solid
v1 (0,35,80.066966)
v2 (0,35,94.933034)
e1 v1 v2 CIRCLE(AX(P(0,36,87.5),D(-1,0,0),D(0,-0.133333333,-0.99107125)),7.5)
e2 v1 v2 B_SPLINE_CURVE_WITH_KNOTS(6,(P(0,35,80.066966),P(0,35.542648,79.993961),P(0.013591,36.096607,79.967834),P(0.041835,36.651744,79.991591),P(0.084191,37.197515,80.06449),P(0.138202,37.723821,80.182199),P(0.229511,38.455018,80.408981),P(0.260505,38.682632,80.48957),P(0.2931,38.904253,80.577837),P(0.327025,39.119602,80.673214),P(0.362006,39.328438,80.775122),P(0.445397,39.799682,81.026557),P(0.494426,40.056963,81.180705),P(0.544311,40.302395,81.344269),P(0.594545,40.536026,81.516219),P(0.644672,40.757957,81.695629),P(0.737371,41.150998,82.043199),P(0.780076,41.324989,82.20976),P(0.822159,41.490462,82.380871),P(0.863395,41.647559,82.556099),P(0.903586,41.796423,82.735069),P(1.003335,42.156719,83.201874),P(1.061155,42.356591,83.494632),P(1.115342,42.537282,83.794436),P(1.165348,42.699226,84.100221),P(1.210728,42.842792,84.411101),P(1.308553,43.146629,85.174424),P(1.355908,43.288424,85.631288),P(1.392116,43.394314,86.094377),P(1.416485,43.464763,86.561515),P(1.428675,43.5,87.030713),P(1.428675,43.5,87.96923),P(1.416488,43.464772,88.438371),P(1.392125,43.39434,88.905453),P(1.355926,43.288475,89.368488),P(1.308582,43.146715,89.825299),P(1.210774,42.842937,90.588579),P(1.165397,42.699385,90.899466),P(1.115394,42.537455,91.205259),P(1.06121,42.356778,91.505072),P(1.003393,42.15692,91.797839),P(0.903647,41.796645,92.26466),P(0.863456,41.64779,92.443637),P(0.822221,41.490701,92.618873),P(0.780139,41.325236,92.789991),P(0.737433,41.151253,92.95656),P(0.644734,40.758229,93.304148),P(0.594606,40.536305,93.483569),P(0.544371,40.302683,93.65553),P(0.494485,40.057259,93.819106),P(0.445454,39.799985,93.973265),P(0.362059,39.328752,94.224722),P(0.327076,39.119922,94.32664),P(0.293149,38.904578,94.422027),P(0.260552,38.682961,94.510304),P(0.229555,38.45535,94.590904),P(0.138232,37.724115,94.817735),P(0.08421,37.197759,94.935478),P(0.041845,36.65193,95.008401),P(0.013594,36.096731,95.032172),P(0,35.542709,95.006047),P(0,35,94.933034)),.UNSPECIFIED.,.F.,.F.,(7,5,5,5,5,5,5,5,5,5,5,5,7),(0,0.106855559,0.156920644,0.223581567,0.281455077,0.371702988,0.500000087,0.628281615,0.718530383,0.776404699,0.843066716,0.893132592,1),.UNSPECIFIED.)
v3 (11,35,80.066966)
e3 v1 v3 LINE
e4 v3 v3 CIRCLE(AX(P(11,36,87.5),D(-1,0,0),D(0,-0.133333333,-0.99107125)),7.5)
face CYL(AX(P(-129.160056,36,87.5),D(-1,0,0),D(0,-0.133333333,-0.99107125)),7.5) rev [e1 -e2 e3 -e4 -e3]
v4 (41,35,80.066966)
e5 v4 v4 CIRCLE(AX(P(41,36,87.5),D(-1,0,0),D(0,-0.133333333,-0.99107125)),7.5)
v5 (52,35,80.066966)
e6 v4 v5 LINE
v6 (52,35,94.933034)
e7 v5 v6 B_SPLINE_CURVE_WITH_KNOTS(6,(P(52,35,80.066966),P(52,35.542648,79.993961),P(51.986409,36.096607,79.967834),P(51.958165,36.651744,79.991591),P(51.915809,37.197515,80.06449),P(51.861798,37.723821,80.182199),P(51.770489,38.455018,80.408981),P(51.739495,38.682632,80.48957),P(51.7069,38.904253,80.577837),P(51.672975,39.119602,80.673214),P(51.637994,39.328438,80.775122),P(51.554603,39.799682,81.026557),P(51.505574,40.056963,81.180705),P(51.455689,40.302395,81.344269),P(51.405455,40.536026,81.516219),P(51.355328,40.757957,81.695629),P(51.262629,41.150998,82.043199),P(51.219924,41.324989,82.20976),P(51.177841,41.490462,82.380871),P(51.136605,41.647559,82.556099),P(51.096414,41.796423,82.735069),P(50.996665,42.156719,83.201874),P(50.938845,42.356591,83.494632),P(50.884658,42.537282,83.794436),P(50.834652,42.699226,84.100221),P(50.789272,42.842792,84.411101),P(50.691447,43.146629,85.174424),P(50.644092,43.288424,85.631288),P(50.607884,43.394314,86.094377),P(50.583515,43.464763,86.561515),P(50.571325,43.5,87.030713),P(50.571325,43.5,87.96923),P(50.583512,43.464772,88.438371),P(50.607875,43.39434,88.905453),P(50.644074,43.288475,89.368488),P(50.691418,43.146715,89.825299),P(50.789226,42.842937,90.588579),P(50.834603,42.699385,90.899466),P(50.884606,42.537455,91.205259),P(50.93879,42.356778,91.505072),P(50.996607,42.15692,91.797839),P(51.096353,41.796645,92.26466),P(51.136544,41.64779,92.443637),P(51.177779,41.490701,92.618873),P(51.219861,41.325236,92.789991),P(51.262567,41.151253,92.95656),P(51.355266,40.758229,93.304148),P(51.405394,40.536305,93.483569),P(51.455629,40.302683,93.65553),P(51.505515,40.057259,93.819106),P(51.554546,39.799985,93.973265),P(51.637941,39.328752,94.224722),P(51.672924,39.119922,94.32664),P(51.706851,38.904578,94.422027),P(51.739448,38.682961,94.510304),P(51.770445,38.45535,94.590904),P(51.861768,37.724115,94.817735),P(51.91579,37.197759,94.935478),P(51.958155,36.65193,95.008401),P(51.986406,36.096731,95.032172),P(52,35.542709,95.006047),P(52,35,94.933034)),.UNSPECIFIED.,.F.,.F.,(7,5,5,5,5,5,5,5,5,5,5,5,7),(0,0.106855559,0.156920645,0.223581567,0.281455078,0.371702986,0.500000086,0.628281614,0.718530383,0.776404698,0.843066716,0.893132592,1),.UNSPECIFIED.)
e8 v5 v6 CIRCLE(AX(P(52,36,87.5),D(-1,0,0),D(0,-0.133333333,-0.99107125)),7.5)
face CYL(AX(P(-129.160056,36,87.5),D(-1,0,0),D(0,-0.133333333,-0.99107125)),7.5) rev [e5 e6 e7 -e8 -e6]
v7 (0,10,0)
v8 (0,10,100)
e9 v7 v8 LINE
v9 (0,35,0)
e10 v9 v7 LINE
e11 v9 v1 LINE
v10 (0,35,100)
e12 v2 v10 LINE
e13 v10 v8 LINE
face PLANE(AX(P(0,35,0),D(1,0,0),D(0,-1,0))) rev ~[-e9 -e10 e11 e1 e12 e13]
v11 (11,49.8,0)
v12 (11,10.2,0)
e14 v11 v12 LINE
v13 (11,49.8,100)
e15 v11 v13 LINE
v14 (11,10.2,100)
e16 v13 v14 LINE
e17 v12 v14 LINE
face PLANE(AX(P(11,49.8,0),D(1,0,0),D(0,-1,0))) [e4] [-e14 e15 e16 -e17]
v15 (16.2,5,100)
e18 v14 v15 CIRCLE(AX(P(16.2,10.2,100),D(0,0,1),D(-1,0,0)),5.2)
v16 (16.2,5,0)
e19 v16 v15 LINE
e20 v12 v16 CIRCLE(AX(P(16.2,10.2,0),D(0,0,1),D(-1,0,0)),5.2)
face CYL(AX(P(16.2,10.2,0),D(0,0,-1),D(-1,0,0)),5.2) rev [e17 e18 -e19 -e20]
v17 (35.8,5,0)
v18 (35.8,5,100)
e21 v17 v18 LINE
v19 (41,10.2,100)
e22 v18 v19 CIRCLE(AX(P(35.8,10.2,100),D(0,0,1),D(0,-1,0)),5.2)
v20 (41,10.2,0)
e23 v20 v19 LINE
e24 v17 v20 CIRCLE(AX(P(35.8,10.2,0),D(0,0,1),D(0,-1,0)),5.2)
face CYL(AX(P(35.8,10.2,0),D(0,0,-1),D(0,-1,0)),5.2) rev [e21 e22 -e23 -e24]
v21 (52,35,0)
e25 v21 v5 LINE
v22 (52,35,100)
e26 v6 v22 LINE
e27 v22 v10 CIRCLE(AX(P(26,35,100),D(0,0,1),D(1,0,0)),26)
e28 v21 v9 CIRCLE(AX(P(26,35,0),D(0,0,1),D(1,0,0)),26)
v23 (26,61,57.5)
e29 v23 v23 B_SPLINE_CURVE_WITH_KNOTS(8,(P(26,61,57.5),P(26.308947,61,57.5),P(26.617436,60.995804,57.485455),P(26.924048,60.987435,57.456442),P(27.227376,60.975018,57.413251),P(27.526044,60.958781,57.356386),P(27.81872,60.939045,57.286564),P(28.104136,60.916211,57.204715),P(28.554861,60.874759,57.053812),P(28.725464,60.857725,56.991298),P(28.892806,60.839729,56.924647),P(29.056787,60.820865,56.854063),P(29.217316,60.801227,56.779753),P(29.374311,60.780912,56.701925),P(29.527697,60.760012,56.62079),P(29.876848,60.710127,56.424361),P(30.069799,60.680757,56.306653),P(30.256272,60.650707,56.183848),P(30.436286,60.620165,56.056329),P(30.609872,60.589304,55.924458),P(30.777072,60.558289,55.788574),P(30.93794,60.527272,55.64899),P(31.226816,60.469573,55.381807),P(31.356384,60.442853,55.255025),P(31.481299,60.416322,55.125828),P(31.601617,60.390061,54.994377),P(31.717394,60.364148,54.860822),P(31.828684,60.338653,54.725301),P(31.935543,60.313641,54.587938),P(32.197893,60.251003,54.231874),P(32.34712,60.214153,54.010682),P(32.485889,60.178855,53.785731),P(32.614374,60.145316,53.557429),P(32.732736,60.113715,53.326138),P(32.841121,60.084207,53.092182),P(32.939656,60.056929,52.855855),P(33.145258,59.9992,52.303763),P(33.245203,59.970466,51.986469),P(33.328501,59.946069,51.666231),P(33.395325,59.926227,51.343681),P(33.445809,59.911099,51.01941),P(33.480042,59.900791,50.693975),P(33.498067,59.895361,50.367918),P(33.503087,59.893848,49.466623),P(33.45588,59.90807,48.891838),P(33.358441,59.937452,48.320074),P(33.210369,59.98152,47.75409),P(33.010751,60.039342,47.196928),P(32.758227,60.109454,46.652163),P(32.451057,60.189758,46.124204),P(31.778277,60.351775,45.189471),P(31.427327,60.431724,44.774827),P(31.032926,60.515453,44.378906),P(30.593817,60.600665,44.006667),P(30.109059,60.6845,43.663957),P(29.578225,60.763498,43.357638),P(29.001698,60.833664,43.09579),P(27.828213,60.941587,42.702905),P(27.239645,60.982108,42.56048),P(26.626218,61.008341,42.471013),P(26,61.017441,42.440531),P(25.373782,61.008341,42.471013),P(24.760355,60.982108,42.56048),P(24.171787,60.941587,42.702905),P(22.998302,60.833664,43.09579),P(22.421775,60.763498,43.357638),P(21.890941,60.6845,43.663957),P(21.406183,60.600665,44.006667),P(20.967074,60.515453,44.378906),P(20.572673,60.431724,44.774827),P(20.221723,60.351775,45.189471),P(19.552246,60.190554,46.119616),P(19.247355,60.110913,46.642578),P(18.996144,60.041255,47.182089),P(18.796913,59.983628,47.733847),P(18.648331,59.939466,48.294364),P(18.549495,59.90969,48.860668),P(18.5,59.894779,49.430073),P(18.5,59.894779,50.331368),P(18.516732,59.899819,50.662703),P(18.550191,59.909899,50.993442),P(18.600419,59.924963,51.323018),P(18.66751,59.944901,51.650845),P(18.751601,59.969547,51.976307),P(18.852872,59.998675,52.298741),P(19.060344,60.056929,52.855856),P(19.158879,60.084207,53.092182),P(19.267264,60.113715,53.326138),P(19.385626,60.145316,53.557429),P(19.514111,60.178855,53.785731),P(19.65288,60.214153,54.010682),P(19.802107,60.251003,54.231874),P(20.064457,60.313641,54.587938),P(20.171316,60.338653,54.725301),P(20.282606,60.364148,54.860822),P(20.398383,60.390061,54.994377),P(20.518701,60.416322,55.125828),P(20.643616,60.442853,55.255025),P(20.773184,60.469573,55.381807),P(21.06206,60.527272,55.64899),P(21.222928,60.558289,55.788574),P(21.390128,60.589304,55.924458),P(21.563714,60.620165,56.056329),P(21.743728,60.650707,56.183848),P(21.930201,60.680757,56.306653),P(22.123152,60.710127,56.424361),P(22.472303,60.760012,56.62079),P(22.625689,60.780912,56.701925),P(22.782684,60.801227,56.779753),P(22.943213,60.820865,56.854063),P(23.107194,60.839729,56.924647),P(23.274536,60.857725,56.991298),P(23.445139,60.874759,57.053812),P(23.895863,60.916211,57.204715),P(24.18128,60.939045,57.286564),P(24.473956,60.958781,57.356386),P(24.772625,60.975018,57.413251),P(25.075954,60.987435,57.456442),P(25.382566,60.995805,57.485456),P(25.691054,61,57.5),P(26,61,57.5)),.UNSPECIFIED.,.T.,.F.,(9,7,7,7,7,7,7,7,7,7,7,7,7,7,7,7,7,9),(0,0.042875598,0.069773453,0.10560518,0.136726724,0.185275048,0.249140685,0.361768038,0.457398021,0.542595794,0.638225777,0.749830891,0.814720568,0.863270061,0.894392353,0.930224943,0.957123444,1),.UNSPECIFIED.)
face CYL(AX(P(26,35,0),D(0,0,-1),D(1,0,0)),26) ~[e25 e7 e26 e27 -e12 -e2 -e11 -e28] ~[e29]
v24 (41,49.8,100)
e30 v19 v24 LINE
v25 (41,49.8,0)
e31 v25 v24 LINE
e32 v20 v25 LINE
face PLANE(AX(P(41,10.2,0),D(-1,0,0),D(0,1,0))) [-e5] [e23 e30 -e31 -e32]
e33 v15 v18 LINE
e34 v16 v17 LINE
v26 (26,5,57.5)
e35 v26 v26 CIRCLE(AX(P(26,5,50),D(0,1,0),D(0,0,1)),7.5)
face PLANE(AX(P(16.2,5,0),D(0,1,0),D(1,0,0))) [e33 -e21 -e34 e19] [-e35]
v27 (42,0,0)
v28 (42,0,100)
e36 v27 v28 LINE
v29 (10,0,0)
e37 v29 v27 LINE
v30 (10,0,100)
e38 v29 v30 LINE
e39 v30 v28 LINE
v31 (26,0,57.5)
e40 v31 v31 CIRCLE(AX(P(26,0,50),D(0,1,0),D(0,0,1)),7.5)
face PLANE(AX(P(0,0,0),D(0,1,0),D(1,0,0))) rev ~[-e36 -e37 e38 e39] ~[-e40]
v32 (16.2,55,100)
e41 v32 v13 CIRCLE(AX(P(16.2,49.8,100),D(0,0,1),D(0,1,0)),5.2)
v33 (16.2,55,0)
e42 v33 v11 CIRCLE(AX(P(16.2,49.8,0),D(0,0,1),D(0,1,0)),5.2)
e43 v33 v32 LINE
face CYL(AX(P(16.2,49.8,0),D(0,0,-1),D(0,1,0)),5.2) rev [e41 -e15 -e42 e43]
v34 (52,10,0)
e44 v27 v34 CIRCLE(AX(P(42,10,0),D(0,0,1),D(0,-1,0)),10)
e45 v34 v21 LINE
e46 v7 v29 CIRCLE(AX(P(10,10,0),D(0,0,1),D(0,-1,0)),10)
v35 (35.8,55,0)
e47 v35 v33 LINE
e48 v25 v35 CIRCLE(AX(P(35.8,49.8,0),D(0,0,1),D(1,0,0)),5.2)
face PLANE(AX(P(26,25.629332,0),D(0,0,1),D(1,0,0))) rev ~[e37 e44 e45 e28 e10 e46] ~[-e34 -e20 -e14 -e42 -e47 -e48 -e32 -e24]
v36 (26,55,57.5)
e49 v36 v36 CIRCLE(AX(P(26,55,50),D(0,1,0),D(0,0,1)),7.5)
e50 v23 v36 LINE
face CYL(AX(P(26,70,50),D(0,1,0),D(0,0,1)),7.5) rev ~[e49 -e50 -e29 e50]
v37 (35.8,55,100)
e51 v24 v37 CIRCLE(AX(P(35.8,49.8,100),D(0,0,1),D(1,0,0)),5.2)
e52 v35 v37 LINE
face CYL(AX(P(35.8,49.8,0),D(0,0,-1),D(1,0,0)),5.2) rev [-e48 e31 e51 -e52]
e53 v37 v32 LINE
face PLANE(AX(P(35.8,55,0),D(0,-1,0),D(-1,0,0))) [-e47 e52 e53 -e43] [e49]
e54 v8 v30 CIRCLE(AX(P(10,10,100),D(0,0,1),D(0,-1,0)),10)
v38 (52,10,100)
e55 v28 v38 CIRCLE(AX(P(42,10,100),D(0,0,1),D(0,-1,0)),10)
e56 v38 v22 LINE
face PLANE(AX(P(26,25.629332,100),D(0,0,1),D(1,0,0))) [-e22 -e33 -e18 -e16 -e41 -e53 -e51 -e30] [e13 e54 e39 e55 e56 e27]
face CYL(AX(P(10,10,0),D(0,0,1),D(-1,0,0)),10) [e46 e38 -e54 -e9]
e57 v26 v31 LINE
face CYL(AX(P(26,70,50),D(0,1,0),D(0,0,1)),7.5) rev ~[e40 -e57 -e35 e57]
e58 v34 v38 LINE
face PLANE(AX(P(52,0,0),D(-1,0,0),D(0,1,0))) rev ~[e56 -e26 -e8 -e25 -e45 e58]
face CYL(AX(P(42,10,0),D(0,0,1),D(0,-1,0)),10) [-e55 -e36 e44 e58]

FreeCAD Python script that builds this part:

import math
import FreeCAD as App
import Part
import Sketcher
Q = App.Units.Quantity


def edges_at(feature, points):
    """Names of the edges that pass closest to the given points."""
    edges = feature.Shape.Edges
    near = lambda p: min(range(len(edges)), key=lambda i: edges[i].distToShape(Part.Vertex(*p))[0])
    return sorted({f"Edge{near(p) + 1}" for p in points})

doc = App.newDocument("Part")
body = doc.addObject("PartDesign::Body", "Body")

# Sketch on XY plane
sketch1 = body.newObject("Sketcher::SketchObject", "Sketch")
sketch1.AttachmentSupport = (doc.getObject("XY_Plane"), [""])
sketch1.MapMode = "FlatFace"
sketch1.addGeometry([
    Part.LineSegment(App.Vector(0, 35, 0), App.Vector(0, 0, 0)),  # 0
    Part.LineSegment(App.Vector(0, 0, 0), App.Vector(52, 0, 0)),  # 1
    Part.LineSegment(App.Vector(52, 0, 0), App.Vector(52, 35, 0)),  # 2
    Part.ArcOfCircle(Part.Circle(App.Vector(26, 35, 0), App.Vector(0, 0, 1), 26), math.radians(0), math.radians(180)),  # 3
    Part.LineSegment(App.Vector(11, 10, 0), App.Vector(11, 50, 0)),  # 4
    Part.ArcOfCircle(Part.Circle(App.Vector(16, 50, 0), App.Vector(0, 0, 1), 5), math.radians(90), math.radians(180)),  # 5
    Part.LineSegment(App.Vector(16, 55, 0), App.Vector(36, 55, 0)),  # 6
    Part.ArcOfCircle(Part.Circle(App.Vector(36, 50, 0), App.Vector(0, 0, 1), 5), math.radians(0), math.radians(90)),  # 7
    Part.LineSegment(App.Vector(41, 50, 0), App.Vector(41, 10, 0)),  # 8
    Part.ArcOfCircle(Part.Circle(App.Vector(36, 10, 0), App.Vector(0, 0, 1), 5), math.radians(-90), math.radians(0)),  # 9
    Part.LineSegment(App.Vector(36, 5, 0), App.Vector(16, 5, 0)),  # 10
    Part.ArcOfCircle(Part.Circle(App.Vector(16, 10, 0), App.Vector(0, 0, 1), 5), math.radians(-180), math.radians(-90)),  # 11
], False)
sketch1.addConstraint([
    Sketcher.Constraint("Coincident", 0, 2, 1, 1),
    Sketcher.Constraint("Coincident", 1, 2, 2, 1),
    Sketcher.Constraint("Tangent", 2, 2, 3, 1),
    Sketcher.Constraint("Tangent", 3, 2, 0, 1),
    Sketcher.Constraint("Tangent", 4, 2, 5, 2),
    Sketcher.Constraint("Tangent", 5, 1, 6, 1),
    Sketcher.Constraint("Tangent", 6, 2, 7, 2),
    Sketcher.Constraint("Tangent", 7, 1, 8, 1),
    Sketcher.Constraint("Tangent", 8, 2, 9, 2),
    Sketcher.Constraint("Tangent", 9, 1, 10, 1),
    Sketcher.Constraint("Tangent", 10, 2, 11, 2),
    Sketcher.Constraint("Tangent", 11, 1, 4, 1),
    Sketcher.Constraint("Vertical", 0),
    Sketcher.Constraint("Horizontal", 1),
    Sketcher.Constraint("Vertical", 2),
    Sketcher.Constraint("Vertical", 4),
    Sketcher.Constraint("Horizontal", 6),
    Sketcher.Constraint("Vertical", 8),
    Sketcher.Constraint("Horizontal", 10),
    Sketcher.Constraint("Coincident", 0, 2, -1, 1),
    Sketcher.Constraint("Equal", 5, 7),
    Sketcher.Constraint("Equal", 7, 9),
    Sketcher.Constraint("Equal", 9, 11),
    Sketcher.Constraint("Radius", 3, Q("26 mm")),
    Sketcher.Constraint("Radius", 5, Q("5.2 mm")),
    Sketcher.Constraint("DistanceY", 0, 2, 0, 1, Q("35 mm")),
    Sketcher.Constraint("DistanceX", 6, 1, 6, 2, Q("19.6 mm")),
    Sketcher.Constraint("DistanceY", 4, 1, 4, 2, Q("39.6 mm")),
    Sketcher.Constraint("DistanceX", -1, 1, 4, 2, Q("11 mm")),
    Sketcher.Constraint("DistanceY", -1, 1, 5, 1, Q("55 mm")),
])
pad1 = body.newObject("PartDesign::Pad", "Pad")
pad1.Profile = sketch1
pad1.Length = 100
doc.recompute()

fillet = body.newObject("PartDesign::Fillet", "Fillet")
fillet.Base = (pad1, edges_at(pad1, [(52, 0, 50), (0, 0, 50)]))
fillet.Radius = 10

# Sketch on XZ plane
sketch2 = body.newObject("Sketcher::SketchObject", "Sketch001")
sketch2.AttachmentSupport = (doc.getObject("XZ_Plane"), [""])
sketch2.MapMode = "FlatFace"
sketch2.AttachmentOffset = App.Placement(App.Vector(0, 0, -70), App.Rotation())
sketch2.addGeometry(Part.Circle(App.Vector(26, 50, 0), App.Vector(0, 0, 1), 8), False)
sketch2.addConstraint([
    Sketcher.Constraint("Diameter", 0, Q("15 mm")),
    Sketcher.Constraint("DistanceX", -1, 1, 0, 3, Q("26 mm")),
    Sketcher.Constraint("DistanceY", -1, 1, 0, 3, Q("50 mm")),
])
pocket1 = body.newObject("PartDesign::Pocket", "Pocket")
pocket1.Profile = sketch2
pocket1.Type = "ThroughAll"
pocket1.Reversed = True

# Sketch on YZ plane
sketch3 = body.newObject("Sketcher::SketchObject", "Sketch002")
sketch3.AttachmentSupport = (doc.getObject("YZ_Plane"), [""])
sketch3.MapMode = "FlatFace"
sketch3.addGeometry(Part.Circle(App.Vector(36, 88, 0), App.Vector(0, 0, 1), 8), False)
sketch3.addConstraint([
    Sketcher.Constraint("Diameter", 0, Q("15 mm")),
    Sketcher.Constraint("DistanceX", -1, 1, 0, 3, Q("36 mm")),
    Sketcher.Constraint("DistanceY", -1, 1, 0, 3, Q("87.5 mm")),
])
pocket2 = body.newObject("PartDesign::Pocket", "Pocket001")
pocket2.Profile = sketch3
pocket2.Type = "ThroughAll"
pocket2.Midplane = True

doc.recompute()
